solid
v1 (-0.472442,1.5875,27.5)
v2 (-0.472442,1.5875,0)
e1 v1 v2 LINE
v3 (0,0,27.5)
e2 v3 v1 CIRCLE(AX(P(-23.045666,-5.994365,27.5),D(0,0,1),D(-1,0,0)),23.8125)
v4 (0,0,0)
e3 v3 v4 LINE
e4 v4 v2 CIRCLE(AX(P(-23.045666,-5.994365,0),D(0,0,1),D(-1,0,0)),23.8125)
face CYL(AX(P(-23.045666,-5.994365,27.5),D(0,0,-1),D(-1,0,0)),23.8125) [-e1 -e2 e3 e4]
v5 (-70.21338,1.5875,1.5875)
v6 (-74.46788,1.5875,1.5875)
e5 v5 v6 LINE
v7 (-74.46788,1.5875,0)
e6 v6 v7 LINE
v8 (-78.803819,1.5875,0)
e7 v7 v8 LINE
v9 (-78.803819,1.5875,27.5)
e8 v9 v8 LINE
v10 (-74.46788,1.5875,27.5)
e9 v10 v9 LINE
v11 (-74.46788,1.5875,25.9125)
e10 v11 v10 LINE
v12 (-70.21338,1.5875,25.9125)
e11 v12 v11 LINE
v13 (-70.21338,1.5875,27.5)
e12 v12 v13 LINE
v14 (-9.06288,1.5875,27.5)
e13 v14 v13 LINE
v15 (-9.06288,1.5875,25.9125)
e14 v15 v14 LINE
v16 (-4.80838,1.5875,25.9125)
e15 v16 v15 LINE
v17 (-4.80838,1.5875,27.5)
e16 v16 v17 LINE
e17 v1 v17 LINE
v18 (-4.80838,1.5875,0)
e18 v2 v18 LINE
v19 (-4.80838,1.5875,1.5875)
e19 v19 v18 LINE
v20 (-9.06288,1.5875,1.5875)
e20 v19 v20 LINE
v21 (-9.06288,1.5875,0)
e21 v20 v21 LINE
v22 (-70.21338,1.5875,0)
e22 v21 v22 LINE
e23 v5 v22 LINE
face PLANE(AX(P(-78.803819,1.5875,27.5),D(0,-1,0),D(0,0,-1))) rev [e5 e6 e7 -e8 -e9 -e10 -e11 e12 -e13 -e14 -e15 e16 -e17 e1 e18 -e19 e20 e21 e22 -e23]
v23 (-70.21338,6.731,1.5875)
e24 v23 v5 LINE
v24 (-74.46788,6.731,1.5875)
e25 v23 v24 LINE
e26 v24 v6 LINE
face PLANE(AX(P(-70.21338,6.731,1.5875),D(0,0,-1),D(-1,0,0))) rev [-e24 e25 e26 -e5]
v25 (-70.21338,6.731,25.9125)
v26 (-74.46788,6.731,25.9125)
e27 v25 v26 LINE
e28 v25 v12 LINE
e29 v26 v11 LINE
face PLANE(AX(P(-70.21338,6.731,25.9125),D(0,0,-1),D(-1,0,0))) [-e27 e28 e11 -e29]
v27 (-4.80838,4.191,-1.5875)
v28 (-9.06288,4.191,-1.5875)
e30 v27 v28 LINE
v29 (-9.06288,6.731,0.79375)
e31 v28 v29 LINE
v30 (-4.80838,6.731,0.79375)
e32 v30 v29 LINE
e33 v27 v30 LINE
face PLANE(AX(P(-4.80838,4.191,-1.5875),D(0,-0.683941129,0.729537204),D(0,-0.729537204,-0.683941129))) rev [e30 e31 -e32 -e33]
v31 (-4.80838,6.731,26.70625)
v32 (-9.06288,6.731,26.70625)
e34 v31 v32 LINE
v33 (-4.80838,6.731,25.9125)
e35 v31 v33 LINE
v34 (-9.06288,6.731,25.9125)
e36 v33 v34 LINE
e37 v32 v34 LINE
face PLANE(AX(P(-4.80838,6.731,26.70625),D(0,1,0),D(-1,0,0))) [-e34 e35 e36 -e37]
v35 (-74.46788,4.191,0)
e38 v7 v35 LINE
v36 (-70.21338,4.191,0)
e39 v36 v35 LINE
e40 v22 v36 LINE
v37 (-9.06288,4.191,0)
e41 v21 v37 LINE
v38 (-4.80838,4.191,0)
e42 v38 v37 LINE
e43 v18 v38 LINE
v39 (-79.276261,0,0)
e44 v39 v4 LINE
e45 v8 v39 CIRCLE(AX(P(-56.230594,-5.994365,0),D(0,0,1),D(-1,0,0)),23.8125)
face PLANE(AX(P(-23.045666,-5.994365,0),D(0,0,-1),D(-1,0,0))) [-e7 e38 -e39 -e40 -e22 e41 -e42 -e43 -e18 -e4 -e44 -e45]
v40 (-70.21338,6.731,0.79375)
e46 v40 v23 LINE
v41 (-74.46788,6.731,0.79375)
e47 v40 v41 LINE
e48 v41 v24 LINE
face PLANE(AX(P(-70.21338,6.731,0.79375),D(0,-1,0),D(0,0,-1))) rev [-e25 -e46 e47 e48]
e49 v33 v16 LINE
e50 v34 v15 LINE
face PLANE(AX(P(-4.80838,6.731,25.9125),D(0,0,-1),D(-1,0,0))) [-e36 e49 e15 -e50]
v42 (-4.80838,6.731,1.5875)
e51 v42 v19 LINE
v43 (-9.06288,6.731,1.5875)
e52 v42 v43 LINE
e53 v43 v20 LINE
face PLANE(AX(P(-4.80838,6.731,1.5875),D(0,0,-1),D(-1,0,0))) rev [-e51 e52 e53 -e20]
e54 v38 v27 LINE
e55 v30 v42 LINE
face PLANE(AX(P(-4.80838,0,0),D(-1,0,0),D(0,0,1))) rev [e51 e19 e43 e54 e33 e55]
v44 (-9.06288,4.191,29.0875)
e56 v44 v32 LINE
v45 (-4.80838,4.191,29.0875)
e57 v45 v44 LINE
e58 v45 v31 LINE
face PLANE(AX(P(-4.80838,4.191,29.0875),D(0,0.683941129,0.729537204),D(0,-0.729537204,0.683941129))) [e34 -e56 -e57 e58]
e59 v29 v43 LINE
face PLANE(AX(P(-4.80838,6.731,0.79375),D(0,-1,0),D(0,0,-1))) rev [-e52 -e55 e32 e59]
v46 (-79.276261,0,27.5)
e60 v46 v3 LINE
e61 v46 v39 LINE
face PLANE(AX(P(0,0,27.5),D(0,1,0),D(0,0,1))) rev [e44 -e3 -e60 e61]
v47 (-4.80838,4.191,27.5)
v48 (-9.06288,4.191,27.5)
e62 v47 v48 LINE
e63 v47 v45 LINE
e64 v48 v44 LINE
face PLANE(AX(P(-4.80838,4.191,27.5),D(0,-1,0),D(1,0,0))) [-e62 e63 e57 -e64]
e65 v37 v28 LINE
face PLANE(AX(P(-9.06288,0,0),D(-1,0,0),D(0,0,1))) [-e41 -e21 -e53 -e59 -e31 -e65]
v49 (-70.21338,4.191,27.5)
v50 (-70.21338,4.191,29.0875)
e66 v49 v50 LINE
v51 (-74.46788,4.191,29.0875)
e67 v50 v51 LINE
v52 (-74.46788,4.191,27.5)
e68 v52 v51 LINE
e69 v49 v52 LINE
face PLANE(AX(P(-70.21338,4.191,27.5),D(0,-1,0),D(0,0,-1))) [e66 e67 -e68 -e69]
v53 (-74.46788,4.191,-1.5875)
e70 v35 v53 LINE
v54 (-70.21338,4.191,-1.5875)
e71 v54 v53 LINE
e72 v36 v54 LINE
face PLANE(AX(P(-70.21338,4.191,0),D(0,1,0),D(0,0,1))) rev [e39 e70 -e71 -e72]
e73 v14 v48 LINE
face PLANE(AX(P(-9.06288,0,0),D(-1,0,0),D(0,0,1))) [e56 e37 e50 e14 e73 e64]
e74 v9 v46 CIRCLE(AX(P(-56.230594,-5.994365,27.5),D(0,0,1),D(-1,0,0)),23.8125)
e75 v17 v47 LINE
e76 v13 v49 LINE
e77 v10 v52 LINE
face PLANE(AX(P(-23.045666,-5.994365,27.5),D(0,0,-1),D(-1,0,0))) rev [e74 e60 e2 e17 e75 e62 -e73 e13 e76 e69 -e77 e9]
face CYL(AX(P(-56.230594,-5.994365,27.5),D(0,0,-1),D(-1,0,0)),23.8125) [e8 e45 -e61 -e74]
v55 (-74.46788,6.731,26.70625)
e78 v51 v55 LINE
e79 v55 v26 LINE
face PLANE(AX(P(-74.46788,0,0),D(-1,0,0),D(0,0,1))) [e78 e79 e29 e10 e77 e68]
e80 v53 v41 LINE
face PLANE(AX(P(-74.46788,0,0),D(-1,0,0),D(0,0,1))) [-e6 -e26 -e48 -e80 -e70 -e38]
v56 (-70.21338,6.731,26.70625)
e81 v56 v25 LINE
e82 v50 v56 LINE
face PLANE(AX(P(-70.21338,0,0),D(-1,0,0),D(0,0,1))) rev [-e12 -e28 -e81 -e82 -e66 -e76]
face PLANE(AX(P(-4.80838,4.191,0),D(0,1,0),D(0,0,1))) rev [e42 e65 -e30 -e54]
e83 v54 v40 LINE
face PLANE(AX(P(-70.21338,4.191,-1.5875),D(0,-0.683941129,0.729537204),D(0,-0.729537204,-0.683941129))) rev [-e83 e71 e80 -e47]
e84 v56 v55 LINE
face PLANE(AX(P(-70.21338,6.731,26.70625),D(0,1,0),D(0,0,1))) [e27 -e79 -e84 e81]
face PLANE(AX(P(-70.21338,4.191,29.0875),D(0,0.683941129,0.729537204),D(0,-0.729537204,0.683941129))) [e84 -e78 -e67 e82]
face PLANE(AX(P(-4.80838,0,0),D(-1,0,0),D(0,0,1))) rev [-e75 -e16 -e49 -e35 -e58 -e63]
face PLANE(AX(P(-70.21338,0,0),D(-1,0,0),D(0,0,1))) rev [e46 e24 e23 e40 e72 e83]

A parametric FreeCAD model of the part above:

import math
import FreeCAD as App
import Part
import Sketcher

V = App.Vector
Q = App.Units.Quantity

doc = App.newDocument("Part")
params = doc.addObject("Spreadsheet::Sheet", "Params")
for row, (alias, value) in enumerate([
    ("sketch1_radius", "0.9375 in"),
    ("pad1_length", "27.5 mm"),
    ("sketch2_height", "0.0625 in"),
    ("sketch2_height2", "0.03125 in"),
    ("pad2_length", "0.1675 in"),
    ("linearpattern_pitch", "2.575 in"),
    ("sketch3_height", "0.0625 in"),
    ("sketch3_height2", "0.03125 in"),
    ("pad3_length", "0.1675 in"),
], start=1):
    params.set(f"A{row}", alias)
    params.set(f"B{row}", "=" + value)
    params.setAlias(f"B{row}", alias)

body = doc.addObject("PartDesign::Body", "Body")

# Sketch on XY plane
sketch1 = body.newObject("Sketcher::SketchObject", "Sketch")
sketch1.AttachmentSupport = (doc.getObject("XY_Plane"), [""])
sketch1.MapMode = "FlatFace"
sketch1.addGeometry([
    Part.LineSegment(V(-79.3, 0, 0), V(0, 0, 0)),
    Part.ArcOfCircle(Part.Circle(V(-23, -6, 0), V(0, 0, 1), 23.8), math.radians(14.58), math.radians(18.57)),
    Part.LineSegment(V(-0.5, 1.6, 0), V(-78.8, 1.6, 0)),
    Part.ArcOfCircle(Part.Circle(V(-56.2, -6, 0), V(0, 0, 1), 23.8), math.radians(161.43), math.radians(165.42)),
], False)
sketch1.addConstraint([
    Sketcher.Constraint("Coincident", 0, 2, 1, 1),
    Sketcher.Constraint("Coincident", 1, 2, 2, 1),
    Sketcher.Constraint("Coincident", 2, 2, 3, 1),
    Sketcher.Constraint("Coincident", 3, 2, 0, 1),
    Sketcher.Constraint("Horizontal", 0),
    Sketcher.Constraint("Horizontal", 2),
    Sketcher.Constraint("Coincident", 0, 2, -1, 1),
    Sketcher.Constraint("Equal", 1, 3),
    Sketcher.Constraint("Horizontal", 1, 3, 3, 3),
    Sketcher.Constraint("Radius", 1, Q("0.9375 in")),
    Sketcher.Constraint("DistanceY", -1, 1, 1, 2, Q("0.0625 in")),
    Sketcher.Constraint("DistanceX", 1, 2, -1, 1, Q("0.0186001 in")),
    Sketcher.Constraint("DistanceX", 0, 1, 0, 2, Q("79.276261 mm")),
])
sketch1.setExpression("Constraints[9]", "Params.sketch1_radius")
pad1 = body.newObject("PartDesign::Pad", "Pad")
pad1.Profile = sketch1
pad1.setExpression("Length", "Params.pad1_length")

# Sketch on YZ plane
sketch2 = body.newObject("Sketcher::SketchObject", "Sketch001")
sketch2.AttachmentSupport = (doc.getObject("YZ_Plane"), [""])
sketch2.MapMode = "FlatFace"
sketch2.AttachmentOffset = App.Placement(V(0, 0, -4.80838), App.Rotation())
sketch2.addGeometry([
    Part.LineSegment(V(4.2, 27.5, 0), V(1.6, 27.5, 0)),  # 0
    Part.LineSegment(V(1.6, 27.5, 0), V(1.6, 25.9, 0)),  # 1
    Part.LineSegment(V(1.6, 25.9, 0), V(6.7, 25.9, 0)),  # 2
    Part.LineSegment(V(6.7, 25.9, 0), V(6.7, 26.7, 0)),  # 3
    Part.LineSegment(V(6.7, 26.7, 0), V(4.2, 29.1, 0)),  # 4
    Part.LineSegment(V(4.2, 29.1, 0), V(4.2, 27.5, 0)),  # 5
], False)
sketch2.addConstraint([
    Sketcher.Constraint("Coincident", 0, 2, 1, 1),
    Sketcher.Constraint("Coincident", 1, 2, 2, 1),
    Sketcher.Constraint("Coincident", 2, 2, 3, 1),
    Sketcher.Constraint("Coincident", 3, 2, 4, 1),
    Sketcher.Constraint("Coincident", 4, 2, 5, 1),
    Sketcher.Constraint("Coincident", 5, 2, 0, 1),
    Sketcher.Constraint("Horizontal", 0),
    Sketcher.Constraint("Vertical", 1),
    Sketcher.Constraint("Horizontal", 2),
    Sketcher.Constraint("Vertical", 3),
    Sketcher.Constraint("Vertical", 5),
    Sketcher.Constraint("Equal", 1, 5),
    Sketcher.Constraint("DistanceX", 4, 2, 3, 2, Q("0.1 in")),
    Sketcher.Constraint("DistanceY", 1, 2, 1, 1, Q("0.0625 in")),
    Sketcher.Constraint("DistanceY", 3, 1, 3, 2, Q("0.03125 in")),
    Sketcher.Constraint("DistanceX", 0, 2, 0, 1, Q("0.1025 in")),
    Sketcher.Constraint("DistanceX", -1, 1, 0, 2, Q("0.0625 in")),
    Sketcher.Constraint("DistanceY", -1, 1, 0, 2, Q("27.5 mm")),
])
sketch2.setExpression("Constraints[13]", "Params.sketch2_height")
sketch2.setExpression("Constraints[14]", "Params.sketch2_height2")
pad2 = body.newObject("PartDesign::Pad", "Pad001")
pad2.Profile = sketch2
pad2.setExpression("Length", "Params.pad2_length")
pad2.Reversed = True
doc.recompute()

linearpattern = body.newObject("PartDesign::LinearPattern", "LinearPattern")
linearpattern.Originals = [pad2]
linearpattern.Direction = (doc.getObject("X_Axis"), [""])
linearpattern.Mode = "offset"
linearpattern.setExpression("Offset", "Params.linearpattern_pitch")
linearpattern.Occurrences = 2
linearpattern.Reversed = True
body.Tip = linearpattern
doc.recompute()

datumplane = body.newObject("PartDesign::Plane", "DatumPlane")
datumplane.AttachmentSupport = (doc.getObject("XY_Plane"), [""])
datumplane.MapMode = "FlatFace"
datumplane.AttachmentOffset = App.Placement(V(0, 0, 13.75), App.Rotation())
mirrored = body.newObject("PartDesign::Mirrored", "Mirrored")
mirrored.Originals = [pad2]
mirrored.MirrorPlane = (datumplane, [""])
body.Tip = mirrored

# Sketch on YZ plane
sketch3 = body.newObject("Sketcher::SketchObject", "Sketch002")
sketch3.AttachmentSupport = (doc.getObject("YZ_Plane"), [""])
sketch3.MapMode = "FlatFace"
sketch3.AttachmentOffset = App.Placement(V(0, 0, -70.21338), App.Rotation())
sketch3.addGeometry([
    Part.LineSegment(V(1.6, 0, 0), V(4.2, 0, 0)),  # 0
    Part.LineSegment(V(4.2, 0, 0), V(4.2, -1.6, 0)),  # 1
    Part.LineSegment(V(4.2, -1.6, 0), V(6.7, 0.8, 0)),  # 2
    Part.LineSegment(V(6.7, 0.8, 0), V(6.7, 1.6, 0)),  # 3
    Part.LineSegment(V(6.7, 1.6, 0), V(1.6, 1.6, 0)),  # 4
    Part.LineSegment(V(1.6, 1.6, 0), V(1.6, 0, 0)),  # 5
], False)
sketch3.addConstraint([
    Sketcher.Constraint("Coincident", 0, 2, 1, 1),
    Sketcher.Constraint("Coincident", 1, 2, 2, 1),
    Sketcher.Constraint("Coincident", 2, 2, 3, 1),
    Sketcher.Constraint("Coincident", 3, 2, 4, 1),
    Sketcher.Constraint("Coincident", 4, 2, 5, 1),
    Sketcher.Constraint("Coincident", 5, 2, 0, 1),
    Sketcher.Constraint("Horizontal", 0),
    Sketcher.Constraint("Vertical", 1),
    Sketcher.Constraint("Vertical", 3),
    Sketcher.Constraint("Horizontal", 4),
    Sketcher.Constraint("Vertical", 5),
    Sketcher.Constraint("PointOnObject", 0, 2, -1),
    Sketcher.Constraint("Equal", 1, 5),
    Sketcher.Constraint("DistanceX", 0, 2, 2, 2, Q("0.1 in")),
    Sketcher.Constraint("DistanceY", 1, 2, 1, 1, Q("0.0625 in")),
    Sketcher.Constraint("DistanceY", 3, 1, 3, 2, Q("0.03125 in")),
    Sketcher.Constraint("DistanceX", 0, 1, 0, 2, Q("0.1025 in")),
    Sketcher.Constraint("DistanceX", -1, 1, 0, 2, Q("0.165 in")),
])
sketch3.setExpression("Constraints[14]", "Params.sketch3_height")
sketch3.setExpression("Constraints[15]", "Params.sketch3_height2")
pad3 = body.newObject("PartDesign::Pad", "Pad002")
pad3.Profile = sketch3
pad3.setExpression("Length", "Params.pad3_length")
pad3.Reversed = True

doc.recompute()
